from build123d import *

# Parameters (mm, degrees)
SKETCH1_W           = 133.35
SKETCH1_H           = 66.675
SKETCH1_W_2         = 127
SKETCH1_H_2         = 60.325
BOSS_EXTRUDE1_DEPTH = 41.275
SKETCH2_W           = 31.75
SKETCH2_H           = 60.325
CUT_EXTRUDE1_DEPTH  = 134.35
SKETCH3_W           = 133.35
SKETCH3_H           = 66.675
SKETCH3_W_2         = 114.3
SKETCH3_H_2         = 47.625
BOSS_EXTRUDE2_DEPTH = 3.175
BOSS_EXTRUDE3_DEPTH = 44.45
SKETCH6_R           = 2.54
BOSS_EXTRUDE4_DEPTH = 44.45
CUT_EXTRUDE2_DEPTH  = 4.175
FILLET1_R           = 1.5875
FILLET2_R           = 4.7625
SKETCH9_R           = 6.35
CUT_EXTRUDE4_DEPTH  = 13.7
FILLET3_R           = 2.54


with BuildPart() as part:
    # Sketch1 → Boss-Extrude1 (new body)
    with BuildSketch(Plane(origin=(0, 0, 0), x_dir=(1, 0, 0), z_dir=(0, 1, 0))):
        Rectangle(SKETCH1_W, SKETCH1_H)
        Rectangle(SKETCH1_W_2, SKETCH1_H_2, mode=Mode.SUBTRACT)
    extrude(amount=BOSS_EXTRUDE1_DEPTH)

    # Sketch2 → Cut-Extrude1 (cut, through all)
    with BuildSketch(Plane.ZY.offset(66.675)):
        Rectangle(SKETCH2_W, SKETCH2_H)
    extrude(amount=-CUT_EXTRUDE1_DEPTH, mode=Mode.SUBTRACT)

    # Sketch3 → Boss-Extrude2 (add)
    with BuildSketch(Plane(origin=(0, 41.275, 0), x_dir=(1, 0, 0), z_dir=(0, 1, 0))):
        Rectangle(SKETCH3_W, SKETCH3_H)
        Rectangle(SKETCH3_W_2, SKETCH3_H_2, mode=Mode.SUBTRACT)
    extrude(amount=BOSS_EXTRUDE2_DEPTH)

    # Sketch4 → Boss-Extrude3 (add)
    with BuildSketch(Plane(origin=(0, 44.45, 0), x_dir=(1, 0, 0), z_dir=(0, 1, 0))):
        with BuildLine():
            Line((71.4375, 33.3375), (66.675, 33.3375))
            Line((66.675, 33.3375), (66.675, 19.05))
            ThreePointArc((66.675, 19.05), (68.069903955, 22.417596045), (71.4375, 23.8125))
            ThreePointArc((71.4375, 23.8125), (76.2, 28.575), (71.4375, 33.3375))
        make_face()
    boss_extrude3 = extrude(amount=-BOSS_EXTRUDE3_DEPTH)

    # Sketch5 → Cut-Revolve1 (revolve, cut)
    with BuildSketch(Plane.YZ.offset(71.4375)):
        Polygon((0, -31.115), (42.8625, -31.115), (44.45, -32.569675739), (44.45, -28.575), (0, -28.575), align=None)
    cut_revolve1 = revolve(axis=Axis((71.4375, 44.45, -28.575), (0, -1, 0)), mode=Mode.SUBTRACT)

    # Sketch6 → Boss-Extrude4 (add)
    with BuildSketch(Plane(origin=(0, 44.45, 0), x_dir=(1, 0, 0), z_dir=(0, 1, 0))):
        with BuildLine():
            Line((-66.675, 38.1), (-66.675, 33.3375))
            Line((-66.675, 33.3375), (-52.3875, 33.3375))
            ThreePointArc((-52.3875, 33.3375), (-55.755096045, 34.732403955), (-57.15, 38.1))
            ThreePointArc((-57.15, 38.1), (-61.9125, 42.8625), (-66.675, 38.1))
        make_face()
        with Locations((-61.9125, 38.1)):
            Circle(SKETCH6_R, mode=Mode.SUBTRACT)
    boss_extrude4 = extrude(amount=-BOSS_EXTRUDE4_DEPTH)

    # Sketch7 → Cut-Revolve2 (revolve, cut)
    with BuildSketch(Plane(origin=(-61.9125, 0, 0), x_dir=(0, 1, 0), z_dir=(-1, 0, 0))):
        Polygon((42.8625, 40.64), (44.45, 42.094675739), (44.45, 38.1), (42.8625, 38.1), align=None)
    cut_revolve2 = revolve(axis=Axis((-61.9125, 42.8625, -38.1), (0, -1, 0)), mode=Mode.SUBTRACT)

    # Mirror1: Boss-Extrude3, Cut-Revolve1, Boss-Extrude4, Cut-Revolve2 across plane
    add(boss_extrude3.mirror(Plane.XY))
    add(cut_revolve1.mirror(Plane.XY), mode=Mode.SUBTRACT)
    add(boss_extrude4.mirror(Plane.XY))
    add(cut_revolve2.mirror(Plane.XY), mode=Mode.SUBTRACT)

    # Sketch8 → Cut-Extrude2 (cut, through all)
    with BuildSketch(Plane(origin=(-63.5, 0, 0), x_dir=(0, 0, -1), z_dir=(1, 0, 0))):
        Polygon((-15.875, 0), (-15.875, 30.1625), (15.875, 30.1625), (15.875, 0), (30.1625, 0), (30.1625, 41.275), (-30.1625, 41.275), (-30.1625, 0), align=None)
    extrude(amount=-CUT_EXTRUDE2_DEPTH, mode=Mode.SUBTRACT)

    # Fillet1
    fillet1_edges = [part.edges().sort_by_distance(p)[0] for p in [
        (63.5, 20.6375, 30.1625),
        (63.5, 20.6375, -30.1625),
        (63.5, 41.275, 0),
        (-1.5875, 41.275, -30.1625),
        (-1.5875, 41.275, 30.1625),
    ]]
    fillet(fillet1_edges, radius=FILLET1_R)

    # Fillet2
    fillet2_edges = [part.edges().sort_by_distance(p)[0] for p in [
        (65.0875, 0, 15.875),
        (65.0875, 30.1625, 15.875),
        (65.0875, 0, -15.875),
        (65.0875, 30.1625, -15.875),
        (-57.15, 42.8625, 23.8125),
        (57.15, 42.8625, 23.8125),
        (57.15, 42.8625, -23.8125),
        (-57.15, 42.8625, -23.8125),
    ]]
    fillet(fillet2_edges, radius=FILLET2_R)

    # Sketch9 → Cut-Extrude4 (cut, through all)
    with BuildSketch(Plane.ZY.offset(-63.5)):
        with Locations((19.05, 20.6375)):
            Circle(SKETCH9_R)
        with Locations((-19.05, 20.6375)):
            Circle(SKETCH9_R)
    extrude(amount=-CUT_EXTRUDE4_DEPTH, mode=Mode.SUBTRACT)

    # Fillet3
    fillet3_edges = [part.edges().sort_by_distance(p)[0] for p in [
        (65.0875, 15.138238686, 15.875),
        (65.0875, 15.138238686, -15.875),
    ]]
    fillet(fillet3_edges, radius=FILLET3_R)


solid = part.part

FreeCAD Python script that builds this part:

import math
import FreeCAD as App
import Part
import Sketcher

V = App.Vector
Q = App.Units.Quantity


def edges_at(feature, points):
    """Names of the edges that pass closest to the given points."""
    edges = feature.Shape.Edges
    near = lambda p: min(range(len(edges)), key=lambda i: edges[i].distToShape(Part.Vertex(*p))[0])
    return sorted({f"Edge{near(p) + 1}" for p in points})

doc = App.newDocument("Part")
params = doc.addObject("Spreadsheet::Sheet", "Params")
for row, (alias, value) in enumerate([
    ("sketch1_width", "5 in"),
    ("sketch1_width2", "5.25 in"),
    ("sketch1_height", "2.625 in"),
    ("pad1_length", "1.625 in"),
    ("sketch2_height", "1.25 in"),
    ("sketch2_width", "2.375 in"),
    ("sketch3_width", "4.5 in"),
    ("sketch3_width2", "5.25 in"),
    ("sketch3_height", "2.625 in"),
    ("sketch3_height2", "1.875 in"),
    ("pad2_length", "0.125 in"),
    ("sketch4_radius", "0.1875 in"),
    ("pad3_length", "1.75 in"),
    ("sketch5_height", "0.1 in"),
    ("sketch5_width", "1.75 in"),
    ("sketch5_width2", "1.6875 in"),
    ("groove_angle", "360 deg"),
    ("sketch6_diameter", "0.2 in"),
    ("sketch6_radius", "0.1875 in"),
    ("pad4_length", "1.75 in"),
    ("sketch7_height", "0.1 in"),
    ("sketch7_width", "0.0625 in"),
    ("groove2_angle", "360 deg"),
    ("sketch8_height", "1.25 in"),
    ("sketch8_width", "1.1875 in"),
    ("sketch8_width2", "1.625 in"),
    ("sketch8_height2", "0.5625 in"),
    ("fillet_radius", "0.0625 in"),
    ("fillet2_radius", "0.1875 in"),
    ("sketch9_diameter", "0.5 in"),
    ("fillet3_radius", "0.1 in"),
], start=1):
    params.set(f"A{row}", alias)
    params.set(f"B{row}", "=" + value)
    params.setAlias(f"B{row}", alias)

body = doc.addObject("PartDesign::Body", "Body")

sketch1 = doc.addObject("Sketcher::SketchObject", "Sketch")
body.addObject(sketch1)
sketch1.AttachmentSupport = (doc.XZ_Plane, [""])
sketch1.MapMode = "FlatFace"
sketch1.addGeometry([
    Part.LineSegment(V(-67, -33, 0), V(-67, 33, 0)),
    Part.LineSegment(V(-67, 33, 0), V(67, 33, 0)),
    Part.LineSegment(V(67, 33, 0), V(67, -33, 0)),
    Part.LineSegment(V(67, -33, 0), V(-67, -33, 0)),
    Part.LineSegment(V(64, 30, 0), V(-64, 30, 0)),
    Part.LineSegment(V(-64, 30, 0), V(-64, -30, 0)),
    Part.LineSegment(V(-64, -30, 0), V(64, -30, 0)),
    Part.LineSegment(V(64, -30, 0), V(64, 30, 0)),
], False)
sketch1.addConstraint([
    Sketcher.Constraint("Coincident", 0, 2, 1, 1),
    Sketcher.Constraint("Coincident", 1, 2, 2, 1),
    Sketcher.Constraint("Coincident", 2, 2, 3, 1),
    Sketcher.Constraint("Coincident", 3, 2, 0, 1),
    Sketcher.Constraint("Coincident", 4, 2, 5, 1),
    Sketcher.Constraint("Coincident", 5, 2, 6, 1),
    Sketcher.Constraint("Coincident", 6, 2, 7, 1),
    Sketcher.Constraint("Coincident", 7, 2, 4, 1),
    Sketcher.Constraint("Vertical", 0),
    Sketcher.Constraint("Horizontal", 1),
    Sketcher.Constraint("Vertical", 2),
    Sketcher.Constraint("Horizontal", 3),
    Sketcher.Constraint("Horizontal", 4),
    Sketcher.Constraint("Vertical", 5),
    Sketcher.Constraint("Horizontal", 6),
    Sketcher.Constraint("Vertical", 7),
    Sketcher.Constraint("Symmetric", 0, 2, 2, 2, -1, 1),
    Sketcher.Constraint("Symmetric", 4, 2, 6, 2, -1, 1),
    Sketcher.Constraint("DistanceX", 4, 2, 4, 1, Q("5 in")),
    Sketcher.Constraint("DistanceX", 1, 1, 1, 2, Q("5.25 in")),
    Sketcher.Constraint("DistanceY", 3, 2, 4, 2, Q("2.5 in")),
    Sketcher.Constraint("DistanceY", 0, 1, 0, 2, Q("2.625 in")),
])
sketch1.setExpression("Constraints[18]", "Params.sketch1_width")
sketch1.setExpression("Constraints[19]", "Params.sketch1_width2")
sketch1.setExpression("Constraints[21]", "Params.sketch1_height")
pad1 = doc.addObject("PartDesign::Pad", "Pad")
body.addObject(pad1)
pad1.Profile = sketch1
pad1.setExpression("Length", "Params.pad1_length")
pad1.Reversed = True

sketch2 = doc.addObject("Sketcher::SketchObject", "Sketch001")
body.addObject(sketch2)
sketch2.AttachmentSupport = (doc.YZ_Plane, [""])
sketch2.MapMode = "FlatFace"
sketch2.AttachmentOffset = App.Placement(V(0, 0, -2.625 * 25.4), App.Rotation())
sketch2.addGeometry([
    Part.LineSegment(V(30, -16, 0), V(-30, -16, 0)),
    Part.LineSegment(V(-30, -16, 0), V(-30, 16, 0)),
    Part.LineSegment(V(-30, 16, 0), V(30, 16, 0)),
    Part.LineSegment(V(30, 16, 0), V(30, -16, 0)),
], False)
sketch2.addConstraint([
    Sketcher.Constraint("Coincident", 0, 2, 1, 1),
    Sketcher.Constraint("Coincident", 1, 2, 2, 1),
    Sketcher.Constraint("Coincident", 2, 2, 3, 1),
    Sketcher.Constraint("Coincident", 3, 2, 0, 1),
    Sketcher.Constraint("Horizontal", 0),
    Sketcher.Constraint("Vertical", 1),
    Sketcher.Constraint("Horizontal", 2),
    Sketcher.Constraint("Vertical", 3),
    Sketcher.Constraint("Symmetric", 0, 2, 2, 2, -1, 1),
    Sketcher.Constraint("DistanceY", 1, 1, 1, 2, Q("1.25 in")),
    Sketcher.Constraint("DistanceX", 0, 2, 0, 1, Q("2.375 in")),
])
sketch2.setExpression("Constraints[9]", "Params.sketch2_height")
sketch2.setExpression("Constraints[10]", "Params.sketch2_width")
pocket1 = doc.addObject("PartDesign::Pocket", "Pocket")
body.addObject(pocket1)
pocket1.Profile = sketch2
pocket1.Type = "ThroughAll"
pocket1.Reversed = True

sketch3 = doc.addObject("Sketcher::SketchObject", "Sketch002")
body.addObject(sketch3)
sketch3.AttachmentSupport = (doc.XZ_Plane, [""])
sketch3.MapMode = "FlatFace"
sketch3.AttachmentOffset = App.Placement(V(0, 0, -1.625 * 25.4), App.Rotation())
sketch3.addGeometry([
    Part.LineSegment(V(-67, -33, 0), V(-67, 33, 0)),
    Part.LineSegment(V(-67, 33, 0), V(67, 33, 0)),
    Part.LineSegment(V(67, 33, 0), V(67, -33, 0)),
    Part.LineSegment(V(67, -33, 0), V(-67, -33, 0)),
    Part.LineSegment(V(57, 24, 0), V(-57, 24, 0)),
    Part.LineSegment(V(-57, 24, 0), V(-57, -24, 0)),
    Part.LineSegment(V(-57, -24, 0), V(57, -24, 0)),
    Part.LineSegment(V(57, -24, 0), V(57, 24, 0)),
], False)
sketch3.addConstraint([
    Sketcher.Constraint("Coincident", 0, 2, 1, 1),
    Sketcher.Constraint("Coincident", 1, 2, 2, 1),
    Sketcher.Constraint("Coincident", 2, 2, 3, 1),
    Sketcher.Constraint("Coincident", 3, 2, 0, 1),
    Sketcher.Constraint("Coincident", 4, 2, 5, 1),
    Sketcher.Constraint("Coincident", 5, 2, 6, 1),
    Sketcher.Constraint("Coincident", 6, 2, 7, 1),
    Sketcher.Constraint("Coincident", 7, 2, 4, 1),
    Sketcher.Constraint("Vertical", 0),
    Sketcher.Constraint("Horizontal", 1),
    Sketcher.Constraint("Vertical", 2),
    Sketcher.Constraint("Horizontal", 3),
    Sketcher.Constraint("Horizontal", 4),
    Sketcher.Constraint("Vertical", 5),
    Sketcher.Constraint("Horizontal", 6),
    Sketcher.Constraint("Vertical", 7),
    Sketcher.Constraint("Symmetric", 0, 2, 2, 2, -1, 1),
    Sketcher.Constraint("Symmetric", 4, 2, 6, 2, -1, 1),
    Sketcher.Constraint("DistanceX", 4, 2, 4, 1, Q("4.5 in")),
    Sketcher.Constraint("DistanceX", 1, 1, 1, 2, Q("5.25 in")),
    Sketcher.Constraint("DistanceY", 0, 1, 0, 2, Q("2.625 in")),
    Sketcher.Constraint("DistanceY", 5, 2, 5, 1, Q("1.875 in")),
])
sketch3.setExpression("Constraints[18]", "Params.sketch3_width")
sketch3.setExpression("Constraints[19]", "Params.sketch3_width2")
sketch3.setExpression("Constraints[20]", "Params.sketch3_height")
sketch3.setExpression("Constraints[21]", "Params.sketch3_height2")
pad2 = doc.addObject("PartDesign::Pad", "Pad001")
body.addObject(pad2)
pad2.Profile = sketch3
pad2.setExpression("Length", "Params.pad2_length")
pad2.Reversed = True

sketch4 = doc.addObject("Sketcher::SketchObject", "Sketch003")
body.addObject(sketch4)
sketch4.AttachmentSupport = (doc.XZ_Plane, [""])
sketch4.MapMode = "FlatFace"
sketch4.AttachmentOffset = App.Placement(V(0, 0, -1.75 * 25.4), App.Rotation())
sketch4.addGeometry([
    Part.LineSegment(V(71.4, -33.3, 0), V(66.7, -33.3, 0)),
    Part.LineSegment(V(66.7, -33.3, 0), V(66.7, -19.1, 0)),
    Part.ArcOfCircle(Part.Circle(V(71.4, -19, 0), V(0, 0, 1), 4.8), math.radians(-180), math.radians(-90)),
    Part.ArcOfCircle(Part.Circle(V(71.4, -28.6, 0), V(0, 0, 1), 4.8), math.radians(-90), math.radians(90)),
], False)
sketch4.addConstraint([
    Sketcher.Constraint("Coincident", 0, 2, 1, 1),
    Sketcher.Constraint("Tangent", 1, 2, 2, 1),
    Sketcher.Constraint("Tangent", 2, 2, 3, 2),
    Sketcher.Constraint("Tangent", 3, 1, 0, 1),
    Sketcher.Constraint("Horizontal", 0),
    Sketcher.Constraint("Vertical", 1),
    Sketcher.Constraint("Equal", 2, 3),
    Sketcher.Constraint("Vertical", 2, 3, 3, 3),
    Sketcher.Constraint("Radius", 2, Q("0.1875 in")),
    Sketcher.Constraint("DistanceY", 2, 3, -1, 1, Q("0.75 in")),
    Sketcher.Constraint("DistanceX", -1, 1, 2, 3, Q("2.8125 in")),
])
sketch4.setExpression("Constraints[8]", "Params.sketch4_radius")
pad3 = doc.addObject("PartDesign::Pad", "Pad002")
body.addObject(pad3)
pad3.Profile = sketch4
pad3.setExpression("Length", "Params.pad3_length")

sketch5 = doc.addObject("Sketcher::SketchObject", "Sketch004")
body.addObject(sketch5)
sketch5.AttachmentSupport = (doc.YZ_Plane, [""])
sketch5.MapMode = "FlatFace"
sketch5.AttachmentOffset = App.Placement(V(0, 0, 2.8125 * 25.4), App.Rotation())
sketch5.addGeometry([
    Part.LineSegment(V(0, -31.1, 0), V(42.9, -31.1, 0)),
    Part.LineSegment(V(42.9, -31.1, 0), V(44.5, -32.6, 0)),
    Part.LineSegment(V(44.5, -32.6, 0), V(44.5, -28.6, 0)),
    Part.LineSegment(V(44.5, -28.6, 0), V(0, -28.6, 0)),
    Part.LineSegment(V(0, -28.6, 0), V(0, -31.1, 0)),
], False)
sketch5.addGeometry(Part.LineSegment(V(44.5, -28.6, 0), V(0, -28.6, 0)), True)
sketch5.addConstraint([
    Sketcher.Constraint("Coincident", 0, 2, 1, 1),
    Sketcher.Constraint("Coincident", 1, 2, 2, 1),
    Sketcher.Constraint("Coincident", 2, 2, 3, 1),
    Sketcher.Constraint("Coincident", 3, 2, 4, 1),
    Sketcher.Constraint("Coincident", 4, 2, 0, 1),
    Sketcher.Constraint("Horizontal", 0),
    Sketcher.Constraint("Vertical", 2),
    Sketcher.Constraint("Horizontal", 3),
    Sketcher.Constraint("Vertical", 4),
    Sketcher.Constraint("Horizontal", 5),
    Sketcher.Constraint("Coincident", 5, 1, 2, 2),
    Sketcher.Constraint("PointOnObject", 3, 2, -2),
    Sketcher.Constraint("PointOnObject", 5, 2, -2),
    Sketcher.Constraint("DistanceY", 4, 2, 4, 1, Q("0.1 in")),
    Sketcher.Constraint("DistanceX", 3, 2, 3, 1, Q("1.75 in")),
    Sketcher.Constraint("Angle", 1, Q("-42.5 deg")),
    Sketcher.Constraint("DistanceX", 0, 1, 0, 2, Q("1.6875 in")),
    Sketcher.Constraint("DistanceY", 0, 2, -1, 1, Q("1.225 in")),
])
sketch5.setExpression("Constraints[13]", "Params.sketch5_height")
sketch5.setExpression("Constraints[14]", "Params.sketch5_width")
sketch5.setExpression("Constraints[16]", "Params.sketch5_width2")
groove = doc.addObject("PartDesign::Groove", "Groove")
body.addObject(groove)
groove.Profile = sketch5
groove.ReferenceAxis = (sketch5, ["Axis0"])
groove.setExpression("Angle", "Params.groove_angle")

sketch6 = doc.addObject("Sketcher::SketchObject", "Sketch005")
body.addObject(sketch6)
sketch6.AttachmentSupport = (doc.XZ_Plane, [""])
sketch6.MapMode = "FlatFace"
sketch6.AttachmentOffset = App.Placement(V(0, 0, -1.75 * 25.4), App.Rotation())
sketch6.addGeometry([
    Part.LineSegment(V(-66.7, -38.1, 0), V(-66.7, -33.3, 0)),
    Part.LineSegment(V(-66.7, -33.3, 0), V(-52.4, -33.3, 0)),
    Part.ArcOfCircle(Part.Circle(V(-52.4, -38.1, 0), V(0, 0, 1), 4.8), math.radians(90), math.radians(180)),
    Part.ArcOfCircle(Part.Circle(V(-61.9, -38.1, 0), V(0, 0, 1), 4.8), math.radians(180), math.radians(360)),
    Part.Circle(V(-61.9, -38.1, 0), V(0, 0, 1), 2.5),
], False)
sketch6.addConstraint([
    Sketcher.Constraint("Coincident", 0, 2, 1, 1),
    Sketcher.Constraint("Tangent", 1, 2, 2, 1),
    Sketcher.Constraint("Tangent", 2, 2, 3, 2),
    Sketcher.Constraint("Tangent", 3, 1, 0, 1),
    Sketcher.Constraint("Vertical", 0),
    Sketcher.Constraint("Horizontal", 1),
    Sketcher.Constraint("Coincident", 4, 3, 3, 3),
    Sketcher.Constraint("Equal", 2, 3),
    Sketcher.Constraint("Horizontal", 2, 3, 3, 3),
    Sketcher.Constraint("Diameter", 4, Q("0.2 in")),
    Sketcher.Constraint("Radius", 2, Q("0.1875 in")),
    Sketcher.Constraint("DistanceY", 2, 3, -1, 1, Q("1.5 in")),
    Sketcher.Constraint("DistanceX", 2, 2, -1, 1, Q("2.25 in")),
])
sketch6.setExpression("Constraints[9]", "Params.sketch6_diameter")
sketch6.setExpression("Constraints[10]", "Params.sketch6_radius")
pad4 = doc.addObject("PartDesign::Pad", "Pad003")
body.addObject(pad4)
pad4.Profile = sketch6
pad4.setExpression("Length", "Params.pad4_length")

sketch7 = doc.addObject("Sketcher::SketchObject", "Sketch006")
body.addObject(sketch7)
sketch7.AttachmentSupport = (doc.YZ_Plane, [""])
sketch7.MapMode = "FlatFace"
sketch7.AttachmentOffset = App.Placement(V(0, 0, -2.4375 * 25.4), App.Rotation())
sketch7.addGeometry([
    Part.LineSegment(V(44.5, -42.1, 0), V(42.9, -40.6, 0)),
    Part.LineSegment(V(42.9, -40.6, 0), V(42.9, -38.1, 0)),
    Part.LineSegment(V(42.9, -38.1, 0), V(44.5, -38.1, 0)),
    Part.LineSegment(V(44.5, -38.1, 0), V(44.5, -42.1, 0)),
], False)
sketch7.addGeometry(Part.LineSegment(V(44.5, -38.1, 0), V(42.9, -38.1, 0)), True)
sketch7.addConstraint([
    Sketcher.Constraint("Coincident", 0, 2, 1, 1),
    Sketcher.Constraint("Coincident", 1, 2, 2, 1),
    Sketcher.Constraint("Coincident", 2, 2, 3, 1),
    Sketcher.Constraint("Coincident", 3, 2, 0, 1),
    Sketcher.Constraint("Vertical", 1),
    Sketcher.Constraint("Horizontal", 2),
    Sketcher.Constraint("Vertical", 3),
    Sketcher.Constraint("Horizontal", 4),
    Sketcher.Constraint("Coincident", 4, 1, 2, 2),
    Sketcher.Constraint("Vertical", 0, 2, 4, 2),
    Sketcher.Constraint("DistanceY", 1, 1, 1, 2, Q("0.1 in")),
    Sketcher.Constraint("DistanceY", 0, 2, -1, 1, Q("1.6 in")),
    Sketcher.Constraint("Angle", 0, Q("137.5 deg")),
    Sketcher.Constraint("DistanceX", 2, 1, 2, 2, Q("0.0625 in")),
    Sketcher.Constraint("DistanceX", -1, 1, 2, 2, Q("1.75 in")),
])
sketch7.setExpression("Constraints[10]", "Params.sketch7_height")
sketch7.setExpression("Constraints[13]", "Params.sketch7_width")
groove2 = doc.addObject("PartDesign::Groove", "Groove001")
body.addObject(groove2)
groove2.Profile = sketch7
groove2.ReferenceAxis = (sketch7, ["Axis0"])
groove2.setExpression("Angle", "Params.groove2_angle")
doc.recompute()

mirrored = doc.addObject("PartDesign::Mirrored", "Mirrored")
body.addObject(mirrored)
mirrored.Originals = [pad3, groove, pad4, groove2]
mirrored.MirrorPlane = (doc.XY_Plane, [""])
body.Tip = mirrored

sketch8 = doc.addObject("Sketcher::SketchObject", "Sketch007")
body.addObject(sketch8)
sketch8.AttachmentSupport = (doc.YZ_Plane, [""])
sketch8.MapMode = "FlatFace"
sketch8.AttachmentOffset = App.Placement(V(0, 0, -2.5 * 25.4), App.Rotation())
sketch8.addGeometry([
    Part.LineSegment(V(0, 16, 0), V(30, 16, 0)),
    Part.LineSegment(V(30, 16, 0), V(30, -16, 0)),
    Part.LineSegment(V(30, -16, 0), V(0, -16, 0)),
    Part.LineSegment(V(0, -16, 0), V(0, -30, 0)),
    Part.LineSegment(V(0, -30, 0), V(41, -30, 0)),
    Part.LineSegment(V(41, -30, 0), V(41, 30, 0)),
    Part.LineSegment(V(41, 30, 0), V(0, 30, 0)),
    Part.LineSegment(V(0, 30, 0), V(0, 16, 0)),
], False)
sketch8.addConstraint([
    Sketcher.Constraint("Coincident", 0, 2, 1, 1),
    Sketcher.Constraint("Coincident", 1, 2, 2, 1),
    Sketcher.Constraint("Coincident", 2, 2, 3, 1),
    Sketcher.Constraint("Coincident", 3, 2, 4, 1),
    Sketcher.Constraint("Coincident", 4, 2, 5, 1),
    Sketcher.Constraint("Coincident", 5, 2, 6, 1),
    Sketcher.Constraint("Coincident", 6, 2, 7, 1),
    Sketcher.Constraint("Coincident", 7, 2, 0, 1),
    Sketcher.Constraint("Horizontal", 0),
    Sketcher.Constraint("Vertical", 1),
    Sketcher.Constraint("Horizontal", 2),
    Sketcher.Constraint("Vertical", 3),
    Sketcher.Constraint("Horizontal", 4),
    Sketcher.Constraint("Vertical", 5),
    Sketcher.Constraint("Horizontal", 6),
    Sketcher.Constraint("Vertical", 7),
    Sketcher.Constraint("Symmetric", 3, 2, 6, 2, -1, 1),
    Sketcher.Constraint("Symmetric", 2, 2, 7, 2, -1),
    Sketcher.Constraint("DistanceY", 1, 2, 1, 1, Q("1.25 in")),
    Sketcher.Constraint("DistanceX", 0, 1, 0, 2, Q("1.1875 in")),
    Sketcher.Constraint("DistanceX", 4, 1, 4, 2, Q("1.625 in")),
    Sketcher.Constraint("DistanceY", 3, 2, 3, 1, Q("0.5625 in")),
])
sketch8.setExpression("Constraints[18]", "Params.sketch8_height")
sketch8.setExpression("Constraints[19]", "Params.sketch8_width")
sketch8.setExpression("Constraints[20]", "Params.sketch8_width2")
sketch8.setExpression("Constraints[21]", "Params.sketch8_height2")
pocket2 = doc.addObject("PartDesign::Pocket", "Pocket001")
body.addObject(pocket2)
pocket2.Profile = sketch8
pocket2.Type = "ThroughAll"
doc.recompute()

fillet = doc.addObject("PartDesign::Fillet", "Fillet")
body.addObject(fillet)
fillet.Base = (pocket2, edges_at(pocket2, [
    (63.5, 20.637, 30.163),
    (63.5, 20.637, -30.163),
    (63.5, 41.275, 0),
    (-1.587, 41.275, -30.163),
    (-1.587, 41.275, 30.163),
]))
fillet.setExpression("Radius", "Params.fillet_radius")
doc.recompute()

fillet2 = doc.addObject("PartDesign::Fillet", "Fillet001")
body.addObject(fillet2)
fillet2.Base = (fillet, edges_at(fillet, [
    (65.088, 0, 15.875),
    (65.088, 30.163, 15.875),
    (65.088, 0, -15.875),
    (65.088, 30.163, -15.875),
    (-57.15, 42.862, 23.812),
    (57.15, 42.862, 23.812),
    (57.15, 42.862, -23.812),
    (-57.15, 42.862, -23.812),
]))
fillet2.setExpression("Radius", "Params.fillet2_radius")

sketch9 = doc.addObject("Sketcher::SketchObject", "Sketch008")
body.addObject(sketch9)
sketch9.AttachmentSupport = (doc.YZ_Plane, [""])
sketch9.MapMode = "FlatFace"
sketch9.AttachmentOffset = App.Placement(V(0, 0, 2.5 * 25.4), App.Rotation())
sketch9.addGeometry([
    Part.Circle(V(21, 19, 0), V(0, 0, 1), 6),
    Part.Circle(V(21, -19, 0), V(0, 0, 1), 6),
], False)
sketch9.addConstraint([
    Sketcher.Constraint("Equal", 0, 1),
    Sketcher.Constraint("Symmetric", 0, 3, 1, 3, -1),
    Sketcher.Constraint("Diameter", 0, Q("0.5 in")),
    Sketcher.Constraint("DistanceY", 1, 3, 0, 3, Q("1.5 in")),
    Sketcher.Constraint("DistanceX", -1, 1, 0, 3, Q("0.8125 in")),
])
sketch9.setExpression("Constraints[2]", "Params.sketch9_diameter")
pocket3 = doc.addObject("PartDesign::Pocket", "Pocket002")
body.addObject(pocket3)
pocket3.Profile = sketch9
pocket3.Type = "ThroughAll"
pocket3.Reversed = True
doc.recompute()

fillet3 = doc.addObject("PartDesign::Fillet", "Fillet002")
body.addObject(fillet3)
fillet3.Base = (pocket3, edges_at(pocket3, [(65.088, 15.138, 15.875), (65.088, 15.138, -15.875)]))
fillet3.setExpression("Radius", "Params.fillet3_radius")

doc.recompute()
